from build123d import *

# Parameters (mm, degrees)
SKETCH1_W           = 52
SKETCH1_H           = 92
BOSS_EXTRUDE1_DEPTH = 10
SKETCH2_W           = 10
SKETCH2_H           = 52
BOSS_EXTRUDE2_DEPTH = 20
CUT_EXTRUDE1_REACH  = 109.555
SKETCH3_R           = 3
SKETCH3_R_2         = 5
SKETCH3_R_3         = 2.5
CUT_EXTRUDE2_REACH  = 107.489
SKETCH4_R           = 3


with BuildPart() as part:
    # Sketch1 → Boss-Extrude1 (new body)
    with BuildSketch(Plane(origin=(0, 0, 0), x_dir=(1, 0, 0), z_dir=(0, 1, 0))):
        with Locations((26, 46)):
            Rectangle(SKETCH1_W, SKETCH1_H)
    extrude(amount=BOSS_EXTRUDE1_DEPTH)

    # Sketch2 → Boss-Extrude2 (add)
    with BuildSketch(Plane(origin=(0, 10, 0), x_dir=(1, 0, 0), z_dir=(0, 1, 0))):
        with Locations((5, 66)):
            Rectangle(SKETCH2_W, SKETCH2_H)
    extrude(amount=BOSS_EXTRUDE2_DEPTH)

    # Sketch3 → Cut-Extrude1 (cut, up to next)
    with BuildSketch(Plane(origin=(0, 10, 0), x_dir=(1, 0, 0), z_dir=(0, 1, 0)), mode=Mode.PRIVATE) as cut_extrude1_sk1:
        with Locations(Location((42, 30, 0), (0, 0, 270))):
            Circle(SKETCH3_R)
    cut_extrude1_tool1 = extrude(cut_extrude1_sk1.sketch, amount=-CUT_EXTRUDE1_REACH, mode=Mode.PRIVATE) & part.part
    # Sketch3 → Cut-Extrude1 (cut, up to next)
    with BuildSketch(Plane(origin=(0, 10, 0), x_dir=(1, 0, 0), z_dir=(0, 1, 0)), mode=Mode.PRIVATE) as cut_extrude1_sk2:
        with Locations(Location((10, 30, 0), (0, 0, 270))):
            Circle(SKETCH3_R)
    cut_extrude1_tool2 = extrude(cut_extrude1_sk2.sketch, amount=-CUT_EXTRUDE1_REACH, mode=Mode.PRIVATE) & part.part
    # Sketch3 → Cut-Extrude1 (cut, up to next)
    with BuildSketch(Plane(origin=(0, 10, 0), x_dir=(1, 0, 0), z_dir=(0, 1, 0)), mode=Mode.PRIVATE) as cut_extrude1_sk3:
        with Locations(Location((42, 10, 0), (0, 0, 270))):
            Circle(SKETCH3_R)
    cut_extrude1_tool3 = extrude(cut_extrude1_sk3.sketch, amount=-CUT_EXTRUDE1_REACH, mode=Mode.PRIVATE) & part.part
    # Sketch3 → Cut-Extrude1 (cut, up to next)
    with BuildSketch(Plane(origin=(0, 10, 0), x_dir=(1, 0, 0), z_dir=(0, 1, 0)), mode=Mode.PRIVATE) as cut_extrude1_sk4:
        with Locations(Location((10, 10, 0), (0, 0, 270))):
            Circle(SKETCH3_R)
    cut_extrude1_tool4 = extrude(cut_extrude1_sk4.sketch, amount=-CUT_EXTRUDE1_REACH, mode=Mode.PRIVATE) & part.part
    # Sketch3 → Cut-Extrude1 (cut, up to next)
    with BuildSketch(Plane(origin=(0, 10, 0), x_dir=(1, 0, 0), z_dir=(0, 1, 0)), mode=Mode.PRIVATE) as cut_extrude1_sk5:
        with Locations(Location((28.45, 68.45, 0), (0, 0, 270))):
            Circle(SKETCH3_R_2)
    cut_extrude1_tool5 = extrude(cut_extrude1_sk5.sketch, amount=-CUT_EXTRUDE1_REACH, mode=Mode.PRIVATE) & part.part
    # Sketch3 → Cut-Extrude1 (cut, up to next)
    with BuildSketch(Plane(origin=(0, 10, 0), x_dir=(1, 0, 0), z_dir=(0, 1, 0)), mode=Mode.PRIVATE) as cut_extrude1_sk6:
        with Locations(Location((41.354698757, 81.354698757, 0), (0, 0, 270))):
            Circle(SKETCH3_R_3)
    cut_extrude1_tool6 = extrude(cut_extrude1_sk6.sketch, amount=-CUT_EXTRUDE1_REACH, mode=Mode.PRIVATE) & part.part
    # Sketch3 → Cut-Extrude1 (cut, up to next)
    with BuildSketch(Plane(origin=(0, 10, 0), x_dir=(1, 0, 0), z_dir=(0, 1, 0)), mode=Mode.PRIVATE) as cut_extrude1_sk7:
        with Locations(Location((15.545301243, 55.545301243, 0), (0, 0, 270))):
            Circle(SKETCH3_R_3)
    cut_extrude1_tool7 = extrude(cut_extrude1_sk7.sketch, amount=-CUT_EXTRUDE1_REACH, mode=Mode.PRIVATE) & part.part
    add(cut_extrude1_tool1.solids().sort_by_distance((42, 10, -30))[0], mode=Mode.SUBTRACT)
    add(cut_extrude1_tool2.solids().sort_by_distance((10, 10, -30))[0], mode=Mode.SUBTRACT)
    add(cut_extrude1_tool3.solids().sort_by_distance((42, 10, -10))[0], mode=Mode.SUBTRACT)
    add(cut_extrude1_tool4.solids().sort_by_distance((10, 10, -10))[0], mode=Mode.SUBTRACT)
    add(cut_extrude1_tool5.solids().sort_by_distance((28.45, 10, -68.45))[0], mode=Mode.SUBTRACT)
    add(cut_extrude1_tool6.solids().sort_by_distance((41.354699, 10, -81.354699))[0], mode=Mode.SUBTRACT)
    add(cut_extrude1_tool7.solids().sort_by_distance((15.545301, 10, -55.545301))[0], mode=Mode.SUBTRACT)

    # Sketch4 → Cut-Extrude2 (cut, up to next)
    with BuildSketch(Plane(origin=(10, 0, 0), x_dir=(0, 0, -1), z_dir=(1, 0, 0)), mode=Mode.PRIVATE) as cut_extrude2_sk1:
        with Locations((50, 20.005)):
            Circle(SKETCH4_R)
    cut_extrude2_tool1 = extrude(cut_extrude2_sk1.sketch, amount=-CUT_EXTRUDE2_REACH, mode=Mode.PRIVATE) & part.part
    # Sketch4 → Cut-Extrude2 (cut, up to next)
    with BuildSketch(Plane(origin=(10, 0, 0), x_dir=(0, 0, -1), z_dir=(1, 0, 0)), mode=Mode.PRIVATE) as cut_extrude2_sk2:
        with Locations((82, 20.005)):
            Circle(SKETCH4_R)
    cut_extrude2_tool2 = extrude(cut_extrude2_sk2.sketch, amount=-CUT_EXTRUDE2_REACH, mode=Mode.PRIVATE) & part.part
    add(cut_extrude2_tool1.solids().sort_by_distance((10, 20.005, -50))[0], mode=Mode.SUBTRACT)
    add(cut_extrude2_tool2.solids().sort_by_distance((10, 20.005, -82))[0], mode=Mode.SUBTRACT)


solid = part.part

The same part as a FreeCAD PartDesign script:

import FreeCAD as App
import Part
import Sketcher
from FreeCAD import Vector

doc = App.newDocument("Part")
body = doc.addObject("PartDesign::Body", "Body")

sketch1 = body.newObject("Sketcher::SketchObject", "Sketch")
sketch1.AttachmentSupport = (doc.getObject("XZ_Plane"), [""])
sketch1.MapMode = "FlatFace"
sketch1.addGeometry(Part.LineSegment(Vector(0, -92, 0), Vector(0, 0, 0)), False)
sketch1.addGeometry(Part.LineSegment(Vector(0, 0, 0), Vector(52, 0, 0)), False)
sketch1.addGeometry(Part.LineSegment(Vector(52, 0, 0), Vector(52, -92, 0)), False)
sketch1.addGeometry(Part.LineSegment(Vector(52, -92, 0), Vector(0, -92, 0)), False)
sketch1.addConstraint(Sketcher.Constraint("Coincident", 0, 2, 1, 1))
sketch1.addConstraint(Sketcher.Constraint("Coincident", 1, 2, 2, 1))
sketch1.addConstraint(Sketcher.Constraint("Coincident", 2, 2, 3, 1))
sketch1.addConstraint(Sketcher.Constraint("Coincident", 3, 2, 0, 1))
sketch1.addConstraint(Sketcher.Constraint("Vertical", 0))
sketch1.addConstraint(Sketcher.Constraint("Horizontal", 1))
sketch1.addConstraint(Sketcher.Constraint("Vertical", 2))
sketch1.addConstraint(Sketcher.Constraint("Horizontal", 3))
sketch1.addConstraint(Sketcher.Constraint("Coincident", 0, 2, -1, 1))
sketch1.addConstraint(Sketcher.Constraint("DistanceX", 1, 1, 1, 2, 52.0))
sketch1.addConstraint(Sketcher.Constraint("DistanceY", 0, 1, 0, 2, 92.0))
pad1 = body.newObject("PartDesign::Pad", "Pad")
pad1.Profile = sketch1
pad1.Length = 10
pad1.Reversed = True

sketch2 = body.newObject("Sketcher::SketchObject", "Sketch001")
sketch2.AttachmentSupport = (doc.getObject("XZ_Plane"), [""])
sketch2.MapMode = "FlatFace"
sketch2.AttachmentOffset = App.Placement(Vector(0, 0, -10), App.Rotation())
sketch2.addGeometry(Part.LineSegment(Vector(0, -92, 0), Vector(0, -40, 0)), False)
sketch2.addGeometry(Part.LineSegment(Vector(0, -40, 0), Vector(10, -40, 0)), False)
sketch2.addGeometry(Part.LineSegment(Vector(10, -40, 0), Vector(10, -92, 0)), False)
sketch2.addGeometry(Part.LineSegment(Vector(10, -92, 0), Vector(0, -92, 0)), False)
sketch2.addConstraint(Sketcher.Constraint("Coincident", 0, 2, 1, 1))
sketch2.addConstraint(Sketcher.Constraint("Coincident", 1, 2, 2, 1))
sketch2.addConstraint(Sketcher.Constraint("Coincident", 2, 2, 3, 1))
sketch2.addConstraint(Sketcher.Constraint("Coincident", 3, 2, 0, 1))
sketch2.addConstraint(Sketcher.Constraint("Vertical", 0))
sketch2.addConstraint(Sketcher.Constraint("Horizontal", 1))
sketch2.addConstraint(Sketcher.Constraint("Vertical", 2))
sketch2.addConstraint(Sketcher.Constraint("Horizontal", 3))
sketch2.addConstraint(Sketcher.Constraint("PointOnObject", 0, 2, -2))
sketch2.addConstraint(Sketcher.Constraint("DistanceX", 1, 1, 1, 2, 10.0))
sketch2.addConstraint(Sketcher.Constraint("DistanceY", 0, 1, 0, 2, 52.0))
sketch2.addConstraint(Sketcher.Constraint("DistanceY", 0, 2, -1, 1, 40.0))
pad2 = body.newObject("PartDesign::Pad", "Pad001")
pad2.Profile = sketch2
pad2.Length = 20
pad2.Reversed = True

sketch3 = body.newObject("Sketcher::SketchObject", "Sketch002")
sketch3.AttachmentSupport = (doc.getObject("XZ_Plane"), [""])
sketch3.MapMode = "FlatFace"
sketch3.AttachmentOffset = App.Placement(Vector(0, 0, -10), App.Rotation())
sketch3.addGeometry(Part.Circle(Vector(42, -30, 0), Vector(0, 0, 1), 3), False)
sketch3.addConstraint(Sketcher.Constraint("Diameter", 0, 6.0))
sketch3.addConstraint(Sketcher.Constraint("DistanceX", -1, 1, 0, 3, 42.0))
sketch3.addConstraint(Sketcher.Constraint("DistanceY", 0, 3, -1, 1, 30.0))
pocket1 = body.newObject("PartDesign::Pocket", "Pocket")
pocket1.Profile = sketch3
pocket1.Type = "UpToFirst"
pocket1.Reversed = True

sketch4 = body.newObject("Sketcher::SketchObject", "Sketch003")
sketch4.AttachmentSupport = (doc.getObject("XZ_Plane"), [""])
sketch4.MapMode = "FlatFace"
sketch4.AttachmentOffset = App.Placement(Vector(0, 0, -10), App.Rotation())
sketch4.addGeometry(Part.Circle(Vector(10, -30, 0), Vector(0, 0, 1), 3), False)
sketch4.addConstraint(Sketcher.Constraint("Diameter", 0, 6.0))
sketch4.addConstraint(Sketcher.Constraint("DistanceX", -1, 1, 0, 3, 10.0))
sketch4.addConstraint(Sketcher.Constraint("DistanceY", 0, 3, -1, 1, 30.0))
pocket2 = body.newObject("PartDesign::Pocket", "Pocket001")
pocket2.Profile = sketch4
pocket2.Type = "UpToFirst"
pocket2.Reversed = True

sketch5 = body.newObject("Sketcher::SketchObject", "Sketch004")
sketch5.AttachmentSupport = (doc.getObject("XZ_Plane"), [""])
sketch5.MapMode = "FlatFace"
sketch5.AttachmentOffset = App.Placement(Vector(0, 0, -10), App.Rotation())
sketch5.addGeometry(Part.Circle(Vector(42, -10, 0), Vector(0, 0, 1), 3), False)
sketch5.addConstraint(Sketcher.Constraint("Diameter", 0, 6.0))
sketch5.addConstraint(Sketcher.Constraint("DistanceX", -1, 1, 0, 3, 42.0))
sketch5.addConstraint(Sketcher.Constraint("DistanceY", 0, 3, -1, 1, 10.0))
pocket3 = body.newObject("PartDesign::Pocket", "Pocket002")
pocket3.Profile = sketch5
pocket3.Type = "UpToFirst"
pocket3.Reversed = True

sketch6 = body.newObject("Sketcher::SketchObject", "Sketch005")
sketch6.AttachmentSupport = (doc.getObject("XZ_Plane"), [""])
sketch6.MapMode = "FlatFace"
sketch6.AttachmentOffset = App.Placement(Vector(0, 0, -10), App.Rotation())
sketch6.addGeometry(Part.Circle(Vector(10, -10, 0), Vector(0, 0, 1), 3), False)
sketch6.addConstraint(Sketcher.Constraint("Diameter", 0, 6.0))
sketch6.addConstraint(Sketcher.Constraint("DistanceX", -1, 1, 0, 3, 10.0))
sketch6.addConstraint(Sketcher.Constraint("DistanceY", 0, 3, -1, 1, 10.0))
pocket4 = body.newObject("PartDesign::Pocket", "Pocket003")
pocket4.Profile = sketch6
pocket4.Type = "UpToFirst"
pocket4.Reversed = True

sketch7 = body.newObject("Sketcher::SketchObject", "Sketch006")
sketch7.AttachmentSupport = (doc.getObject("XZ_Plane"), [""])
sketch7.MapMode = "FlatFace"
sketch7.AttachmentOffset = App.Placement(Vector(0, 0, -10), App.Rotation())
sketch7.addGeometry(Part.Circle(Vector(28, -68, 0), Vector(0, 0, 1), 5), False)
sketch7.addConstraint(Sketcher.Constraint("Diameter", 0, 10.0))
sketch7.addConstraint(Sketcher.Constraint("DistanceX", -1, 1, 0, 3, 28.45))
sketch7.addConstraint(Sketcher.Constraint("DistanceY", 0, 3, -1, 1, 68.45))
pocket5 = body.newObject("PartDesign::Pocket", "Pocket004")
pocket5.Profile = sketch7
pocket5.Type = "UpToFirst"
pocket5.Reversed = True

sketch8 = body.newObject("Sketcher::SketchObject", "Sketch007")
sketch8.AttachmentSupport = (doc.getObject("XZ_Plane"), [""])
sketch8.MapMode = "FlatFace"
sketch8.AttachmentOffset = App.Placement(Vector(0, 0, -10), App.Rotation())
sketch8.addGeometry(Part.Circle(Vector(41.4, -81.4, 0), Vector(0, 0, 1), 2.5), False)
sketch8.addConstraint(Sketcher.Constraint("Diameter", 0, 5.0))
sketch8.addConstraint(Sketcher.Constraint("DistanceX", -1, 1, 0, 3, 41.354699))
sketch8.addConstraint(Sketcher.Constraint("DistanceY", 0, 3, -1, 1, 81.354699))
pocket6 = body.newObject("PartDesign::Pocket", "Pocket005")
pocket6.Profile = sketch8
pocket6.Type = "UpToFirst"
pocket6.Reversed = True

sketch9 = body.newObject("Sketcher::SketchObject", "Sketch008")
sketch9.AttachmentSupport = (doc.getObject("XZ_Plane"), [""])
sketch9.MapMode = "FlatFace"
sketch9.AttachmentOffset = App.Placement(Vector(0, 0, -10), App.Rotation())
sketch9.addGeometry(Part.Circle(Vector(15.5, -55.5, 0), Vector(0, 0, 1), 2.5), False)
sketch9.addConstraint(Sketcher.Constraint("Diameter", 0, 5.0))
sketch9.addConstraint(Sketcher.Constraint("DistanceX", -1, 1, 0, 3, 15.545301))
sketch9.addConstraint(Sketcher.Constraint("DistanceY", 0, 3, -1, 1, 55.545301))
pocket7 = body.newObject("PartDesign::Pocket", "Pocket006")
pocket7.Profile = sketch9
pocket7.Type = "UpToFirst"
pocket7.Reversed = True

sketch10 = body.newObject("Sketcher::SketchObject", "Sketch009")
sketch10.AttachmentSupport = (doc.getObject("YZ_Plane"), [""])
sketch10.MapMode = "FlatFace"
sketch10.AttachmentOffset = App.Placement(Vector(0, 0, 10), App.Rotation())
sketch10.addGeometry(Part.Circle(Vector(20, -50, 0), Vector(0, 0, 1), 3), False)
sketch10.addConstraint(Sketcher.Constraint("Diameter", 0, 6.0))
sketch10.addConstraint(Sketcher.Constraint("DistanceY", 0, 3, -1, 1, 50.0))
sketch10.addConstraint(Sketcher.Constraint("DistanceX", -1, 1, 0, 3, 20.005))
pocket8 = body.newObject("PartDesign::Pocket", "Pocket007")
pocket8.Profile = sketch10
pocket8.Type = "UpToFirst"

sketch11 = body.newObject("Sketcher::SketchObject", "Sketch010")
sketch11.AttachmentSupport = (doc.getObject("YZ_Plane"), [""])
sketch11.MapMode = "FlatFace"
sketch11.AttachmentOffset = App.Placement(Vector(0, 0, 10), App.Rotation())
sketch11.addGeometry(Part.Circle(Vector(20, -82, 0), Vector(0, 0, 1), 3), False)
sketch11.addConstraint(Sketcher.Constraint("Diameter", 0, 6.0))
sketch11.addConstraint(Sketcher.Constraint("DistanceY", 0, 3, -1, 1, 82.0))
sketch11.addConstraint(Sketcher.Constraint("DistanceX", -1, 1, 0, 3, 20.005))
pocket9 = body.newObject("PartDesign::Pocket", "Pocket008")
pocket9.Profile = sketch11
pocket9.Type = "UpToFirst"

doc.recompute()
